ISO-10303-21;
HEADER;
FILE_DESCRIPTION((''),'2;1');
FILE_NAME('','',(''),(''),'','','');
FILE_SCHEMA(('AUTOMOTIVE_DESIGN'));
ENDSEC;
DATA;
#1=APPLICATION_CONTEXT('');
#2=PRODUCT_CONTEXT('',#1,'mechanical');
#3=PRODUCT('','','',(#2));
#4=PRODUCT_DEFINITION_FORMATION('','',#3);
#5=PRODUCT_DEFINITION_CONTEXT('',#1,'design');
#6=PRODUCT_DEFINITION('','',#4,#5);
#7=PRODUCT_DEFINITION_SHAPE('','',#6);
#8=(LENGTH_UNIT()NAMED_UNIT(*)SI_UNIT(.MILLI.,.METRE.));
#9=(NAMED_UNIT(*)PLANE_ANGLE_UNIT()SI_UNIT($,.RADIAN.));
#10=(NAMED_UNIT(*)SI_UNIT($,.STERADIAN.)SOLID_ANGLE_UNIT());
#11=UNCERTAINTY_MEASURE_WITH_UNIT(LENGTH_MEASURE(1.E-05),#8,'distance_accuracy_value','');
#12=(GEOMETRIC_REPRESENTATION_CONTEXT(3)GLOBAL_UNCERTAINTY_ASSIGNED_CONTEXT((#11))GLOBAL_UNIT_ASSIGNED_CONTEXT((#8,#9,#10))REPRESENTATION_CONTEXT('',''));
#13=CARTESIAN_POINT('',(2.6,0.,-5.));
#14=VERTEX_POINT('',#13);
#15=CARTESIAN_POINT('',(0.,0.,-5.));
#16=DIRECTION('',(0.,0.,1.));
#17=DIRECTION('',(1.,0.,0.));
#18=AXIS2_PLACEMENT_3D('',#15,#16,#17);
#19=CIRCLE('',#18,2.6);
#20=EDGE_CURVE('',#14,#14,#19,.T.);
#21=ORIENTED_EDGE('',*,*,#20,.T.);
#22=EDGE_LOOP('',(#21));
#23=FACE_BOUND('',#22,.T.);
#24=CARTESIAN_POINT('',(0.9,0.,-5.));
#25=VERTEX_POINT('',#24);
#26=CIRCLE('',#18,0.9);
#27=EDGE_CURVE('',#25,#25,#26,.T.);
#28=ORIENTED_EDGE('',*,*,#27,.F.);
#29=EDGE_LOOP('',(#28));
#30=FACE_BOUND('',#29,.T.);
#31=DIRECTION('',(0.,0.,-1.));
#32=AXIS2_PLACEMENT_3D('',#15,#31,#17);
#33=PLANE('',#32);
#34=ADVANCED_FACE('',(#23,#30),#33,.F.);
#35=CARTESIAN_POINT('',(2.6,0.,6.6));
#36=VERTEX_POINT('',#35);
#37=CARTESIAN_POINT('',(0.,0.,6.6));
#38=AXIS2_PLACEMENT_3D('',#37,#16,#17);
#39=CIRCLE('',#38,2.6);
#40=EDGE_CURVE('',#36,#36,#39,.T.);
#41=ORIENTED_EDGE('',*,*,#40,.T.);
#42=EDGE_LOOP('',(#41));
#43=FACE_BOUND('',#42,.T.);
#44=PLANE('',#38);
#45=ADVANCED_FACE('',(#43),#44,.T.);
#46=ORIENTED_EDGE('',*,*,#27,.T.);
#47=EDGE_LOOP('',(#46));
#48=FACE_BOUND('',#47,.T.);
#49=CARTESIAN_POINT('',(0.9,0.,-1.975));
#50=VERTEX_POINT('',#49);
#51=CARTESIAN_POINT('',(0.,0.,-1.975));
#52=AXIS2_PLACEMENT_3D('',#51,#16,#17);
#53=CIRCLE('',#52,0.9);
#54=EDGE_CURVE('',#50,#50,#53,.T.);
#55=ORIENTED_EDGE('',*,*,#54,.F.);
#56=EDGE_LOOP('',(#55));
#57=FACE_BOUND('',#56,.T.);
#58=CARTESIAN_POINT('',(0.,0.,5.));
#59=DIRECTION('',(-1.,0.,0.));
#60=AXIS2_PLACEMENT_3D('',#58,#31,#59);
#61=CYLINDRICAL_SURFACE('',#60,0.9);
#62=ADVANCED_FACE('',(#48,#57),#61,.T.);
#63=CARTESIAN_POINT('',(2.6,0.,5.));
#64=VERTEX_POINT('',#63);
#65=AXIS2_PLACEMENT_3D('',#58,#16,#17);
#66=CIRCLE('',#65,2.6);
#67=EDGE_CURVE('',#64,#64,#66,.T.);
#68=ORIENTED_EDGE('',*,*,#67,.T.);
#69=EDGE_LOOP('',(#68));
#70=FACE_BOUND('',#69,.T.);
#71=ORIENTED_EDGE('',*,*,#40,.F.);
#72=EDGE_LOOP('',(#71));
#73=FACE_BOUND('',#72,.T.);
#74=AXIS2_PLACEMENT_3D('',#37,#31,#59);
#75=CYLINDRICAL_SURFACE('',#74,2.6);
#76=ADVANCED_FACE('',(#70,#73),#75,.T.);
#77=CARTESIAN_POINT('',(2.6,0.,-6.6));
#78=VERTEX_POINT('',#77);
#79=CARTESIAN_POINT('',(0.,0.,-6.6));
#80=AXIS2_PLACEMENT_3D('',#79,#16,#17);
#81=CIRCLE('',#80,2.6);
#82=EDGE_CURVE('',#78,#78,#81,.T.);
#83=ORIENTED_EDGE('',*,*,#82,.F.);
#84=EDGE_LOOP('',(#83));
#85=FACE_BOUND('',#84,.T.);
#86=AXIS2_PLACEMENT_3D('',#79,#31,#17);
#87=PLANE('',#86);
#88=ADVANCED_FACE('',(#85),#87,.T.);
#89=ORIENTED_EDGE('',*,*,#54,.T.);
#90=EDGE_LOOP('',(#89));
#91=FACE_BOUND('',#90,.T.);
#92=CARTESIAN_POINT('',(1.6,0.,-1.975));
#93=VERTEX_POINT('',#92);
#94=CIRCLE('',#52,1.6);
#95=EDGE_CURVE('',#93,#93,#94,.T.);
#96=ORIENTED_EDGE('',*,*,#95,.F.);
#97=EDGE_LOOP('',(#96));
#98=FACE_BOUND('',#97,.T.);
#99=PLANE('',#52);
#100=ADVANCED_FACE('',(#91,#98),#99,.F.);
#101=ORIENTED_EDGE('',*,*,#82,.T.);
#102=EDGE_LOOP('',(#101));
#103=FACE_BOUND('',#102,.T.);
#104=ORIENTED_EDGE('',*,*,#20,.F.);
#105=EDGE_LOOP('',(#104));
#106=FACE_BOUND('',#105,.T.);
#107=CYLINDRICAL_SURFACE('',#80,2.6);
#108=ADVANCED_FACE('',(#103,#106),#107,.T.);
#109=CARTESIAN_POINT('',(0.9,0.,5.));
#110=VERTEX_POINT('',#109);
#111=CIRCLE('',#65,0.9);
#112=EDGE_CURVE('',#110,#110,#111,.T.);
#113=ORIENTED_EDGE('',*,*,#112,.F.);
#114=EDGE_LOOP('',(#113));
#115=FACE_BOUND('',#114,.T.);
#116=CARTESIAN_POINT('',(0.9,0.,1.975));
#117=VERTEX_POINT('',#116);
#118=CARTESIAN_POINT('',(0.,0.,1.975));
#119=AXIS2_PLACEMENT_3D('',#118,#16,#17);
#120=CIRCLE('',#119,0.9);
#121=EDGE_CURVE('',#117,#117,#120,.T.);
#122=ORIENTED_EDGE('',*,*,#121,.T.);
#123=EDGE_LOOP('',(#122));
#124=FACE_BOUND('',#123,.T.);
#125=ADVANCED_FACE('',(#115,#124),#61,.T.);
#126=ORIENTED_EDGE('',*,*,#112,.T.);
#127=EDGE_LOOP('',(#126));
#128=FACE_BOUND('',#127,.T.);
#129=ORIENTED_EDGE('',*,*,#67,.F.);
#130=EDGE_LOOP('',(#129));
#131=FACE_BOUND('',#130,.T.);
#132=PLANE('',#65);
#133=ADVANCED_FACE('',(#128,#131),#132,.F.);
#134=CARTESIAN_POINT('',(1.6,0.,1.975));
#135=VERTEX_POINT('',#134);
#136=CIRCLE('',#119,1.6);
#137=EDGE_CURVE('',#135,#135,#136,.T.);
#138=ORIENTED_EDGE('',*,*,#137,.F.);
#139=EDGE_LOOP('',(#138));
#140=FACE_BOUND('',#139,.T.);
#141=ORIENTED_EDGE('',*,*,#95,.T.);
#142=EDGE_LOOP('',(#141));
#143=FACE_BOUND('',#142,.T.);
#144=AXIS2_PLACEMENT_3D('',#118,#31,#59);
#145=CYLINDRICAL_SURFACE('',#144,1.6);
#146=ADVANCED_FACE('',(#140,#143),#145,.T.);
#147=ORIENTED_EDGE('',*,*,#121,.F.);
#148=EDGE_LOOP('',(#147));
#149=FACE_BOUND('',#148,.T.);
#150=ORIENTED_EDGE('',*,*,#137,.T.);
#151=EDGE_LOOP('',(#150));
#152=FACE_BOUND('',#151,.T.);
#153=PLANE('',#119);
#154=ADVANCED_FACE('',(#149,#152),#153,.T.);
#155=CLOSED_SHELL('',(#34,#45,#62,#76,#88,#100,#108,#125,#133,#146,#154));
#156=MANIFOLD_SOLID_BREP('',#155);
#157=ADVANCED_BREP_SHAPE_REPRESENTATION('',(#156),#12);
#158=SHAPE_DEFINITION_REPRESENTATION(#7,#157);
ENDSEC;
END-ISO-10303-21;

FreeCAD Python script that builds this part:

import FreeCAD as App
import Part
import Sketcher

V = App.Vector

doc = App.newDocument("Part")
params = doc.addObject("Spreadsheet::Sheet", "Params")
for row, (alias, value) in enumerate([
    ("sketch1_diameter", "1.8 mm"),
    ("pad1_length", "10 mm"),
    ("sketch2_diameter", "3.2 mm"),
    ("pad2_length", "3.95 mm"),
    ("sketch3_diameter", "5.2 mm"),
    ("pad3_length", "1.6 mm"),
], start=1):
    params.set(f"A{row}", alias)
    params.set(f"B{row}", "=" + value)
    params.setAlias(f"B{row}", alias)

body = doc.addObject("PartDesign::Body", "Body")

# Sketch on XY plane
sketch1 = body.newObject("Sketcher::SketchObject", "Sketch")
sketch1.AttachmentSupport = (doc.getObject("XY_Plane"), [""])
sketch1.MapMode = "FlatFace"
sketch1.addGeometry(Part.Circle(V(0, 0, 0), V(0, 0, 1), 0.9), False)
sketch1.addConstraint(Sketcher.Constraint("Coincident", 0, 3, -1, 1))
sketch1.addConstraint(Sketcher.Constraint("Diameter", 0, 1.8))
sketch1.setExpression("Constraints[1]", "Params.sketch1_diameter")
pad1 = body.newObject("PartDesign::Pad", "Pad")
pad1.Profile = sketch1
pad1.setExpression("Length", "Params.pad1_length")
pad1.Midplane = True

# Sketch on XY plane
sketch2 = body.newObject("Sketcher::SketchObject", "Sketch001")
sketch2.AttachmentSupport = (doc.getObject("XY_Plane"), [""])
sketch2.MapMode = "FlatFace"
sketch2.addGeometry(Part.Circle(V(0, 0, 0), V(0, 0, 1), 1.6), False)
sketch2.addConstraint(Sketcher.Constraint("Coincident", 0, 3, -1, 1))
sketch2.addConstraint(Sketcher.Constraint("Diameter", 0, 3.2))
sketch2.setExpression("Constraints[1]", "Params.sketch2_diameter")
pad2 = body.newObject("PartDesign::Pad", "Pad001")
pad2.Profile = sketch2
pad2.setExpression("Length", "Params.pad2_length")
pad2.Midplane = True

# Sketch on XY plane
sketch3 = body.newObject("Sketcher::SketchObject", "Sketch002")
sketch3.AttachmentSupport = (doc.getObject("XY_Plane"), [""])
sketch3.MapMode = "FlatFace"
sketch3.AttachmentOffset = App.Placement(V(0, 0, 5), App.Rotation())
sketch3.addGeometry(Part.Circle(V(0, 0, 0), V(0, 0, 1), 2.6), False)
sketch3.addConstraint(Sketcher.Constraint("Coincident", 0, 3, -1, 1))
sketch3.addConstraint(Sketcher.Constraint("Diameter", 0, 5.2))
sketch3.setExpression("Constraints[1]", "Params.sketch3_diameter")
pad3 = body.newObject("PartDesign::Pad", "Pad002")
pad3.Profile = sketch3
pad3.setExpression("Length", "Params.pad3_length")
doc.recompute()

mirrored = body.newObject("PartDesign::Mirrored", "Mirrored")
mirrored.Originals = [pad3]
mirrored.MirrorPlane = (doc.getObject("XY_Plane"), [""])
body.Tip = mirrored

doc.recompute()
